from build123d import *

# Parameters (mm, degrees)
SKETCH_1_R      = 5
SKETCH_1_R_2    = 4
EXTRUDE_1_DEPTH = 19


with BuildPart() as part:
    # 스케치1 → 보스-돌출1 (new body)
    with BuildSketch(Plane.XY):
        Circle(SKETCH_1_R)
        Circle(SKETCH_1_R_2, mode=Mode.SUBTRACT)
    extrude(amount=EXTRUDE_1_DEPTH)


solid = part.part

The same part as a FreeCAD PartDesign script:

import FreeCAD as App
import Part
import Sketcher
Q = App.Units.Quantity

doc = App.newDocument("Part")
body = doc.addObject("PartDesign::Body", "Body")

sketch1 = doc.addObject("Sketcher::SketchObject", "Sketch")
body.addObject(sketch1)
sketch1.AttachmentSupport = (doc.XY_Plane, [""])
sketch1.MapMode = "FlatFace"
sketch1.addGeometry([
    Part.Circle(App.Vector(0, 0, 0), App.Vector(0, 0, 1), 5),
    Part.Circle(App.Vector(0, 0, 0), App.Vector(0, 0, 1), 4),
], False)
sketch1.addConstraint([
    Sketcher.Constraint("Coincident", 0, 3, -1, 1),
    Sketcher.Constraint("Coincident", 1, 3, -1, 1),
    Sketcher.Constraint("Diameter", 0, Q("10 mm")),
    Sketcher.Constraint("Diameter", 1, Q("8 mm")),
])
pad1 = doc.addObject("PartDesign::Pad", "Pad")
body.addObject(pad1)
pad1.Profile = sketch1
pad1.Length = 19

doc.recompute()
